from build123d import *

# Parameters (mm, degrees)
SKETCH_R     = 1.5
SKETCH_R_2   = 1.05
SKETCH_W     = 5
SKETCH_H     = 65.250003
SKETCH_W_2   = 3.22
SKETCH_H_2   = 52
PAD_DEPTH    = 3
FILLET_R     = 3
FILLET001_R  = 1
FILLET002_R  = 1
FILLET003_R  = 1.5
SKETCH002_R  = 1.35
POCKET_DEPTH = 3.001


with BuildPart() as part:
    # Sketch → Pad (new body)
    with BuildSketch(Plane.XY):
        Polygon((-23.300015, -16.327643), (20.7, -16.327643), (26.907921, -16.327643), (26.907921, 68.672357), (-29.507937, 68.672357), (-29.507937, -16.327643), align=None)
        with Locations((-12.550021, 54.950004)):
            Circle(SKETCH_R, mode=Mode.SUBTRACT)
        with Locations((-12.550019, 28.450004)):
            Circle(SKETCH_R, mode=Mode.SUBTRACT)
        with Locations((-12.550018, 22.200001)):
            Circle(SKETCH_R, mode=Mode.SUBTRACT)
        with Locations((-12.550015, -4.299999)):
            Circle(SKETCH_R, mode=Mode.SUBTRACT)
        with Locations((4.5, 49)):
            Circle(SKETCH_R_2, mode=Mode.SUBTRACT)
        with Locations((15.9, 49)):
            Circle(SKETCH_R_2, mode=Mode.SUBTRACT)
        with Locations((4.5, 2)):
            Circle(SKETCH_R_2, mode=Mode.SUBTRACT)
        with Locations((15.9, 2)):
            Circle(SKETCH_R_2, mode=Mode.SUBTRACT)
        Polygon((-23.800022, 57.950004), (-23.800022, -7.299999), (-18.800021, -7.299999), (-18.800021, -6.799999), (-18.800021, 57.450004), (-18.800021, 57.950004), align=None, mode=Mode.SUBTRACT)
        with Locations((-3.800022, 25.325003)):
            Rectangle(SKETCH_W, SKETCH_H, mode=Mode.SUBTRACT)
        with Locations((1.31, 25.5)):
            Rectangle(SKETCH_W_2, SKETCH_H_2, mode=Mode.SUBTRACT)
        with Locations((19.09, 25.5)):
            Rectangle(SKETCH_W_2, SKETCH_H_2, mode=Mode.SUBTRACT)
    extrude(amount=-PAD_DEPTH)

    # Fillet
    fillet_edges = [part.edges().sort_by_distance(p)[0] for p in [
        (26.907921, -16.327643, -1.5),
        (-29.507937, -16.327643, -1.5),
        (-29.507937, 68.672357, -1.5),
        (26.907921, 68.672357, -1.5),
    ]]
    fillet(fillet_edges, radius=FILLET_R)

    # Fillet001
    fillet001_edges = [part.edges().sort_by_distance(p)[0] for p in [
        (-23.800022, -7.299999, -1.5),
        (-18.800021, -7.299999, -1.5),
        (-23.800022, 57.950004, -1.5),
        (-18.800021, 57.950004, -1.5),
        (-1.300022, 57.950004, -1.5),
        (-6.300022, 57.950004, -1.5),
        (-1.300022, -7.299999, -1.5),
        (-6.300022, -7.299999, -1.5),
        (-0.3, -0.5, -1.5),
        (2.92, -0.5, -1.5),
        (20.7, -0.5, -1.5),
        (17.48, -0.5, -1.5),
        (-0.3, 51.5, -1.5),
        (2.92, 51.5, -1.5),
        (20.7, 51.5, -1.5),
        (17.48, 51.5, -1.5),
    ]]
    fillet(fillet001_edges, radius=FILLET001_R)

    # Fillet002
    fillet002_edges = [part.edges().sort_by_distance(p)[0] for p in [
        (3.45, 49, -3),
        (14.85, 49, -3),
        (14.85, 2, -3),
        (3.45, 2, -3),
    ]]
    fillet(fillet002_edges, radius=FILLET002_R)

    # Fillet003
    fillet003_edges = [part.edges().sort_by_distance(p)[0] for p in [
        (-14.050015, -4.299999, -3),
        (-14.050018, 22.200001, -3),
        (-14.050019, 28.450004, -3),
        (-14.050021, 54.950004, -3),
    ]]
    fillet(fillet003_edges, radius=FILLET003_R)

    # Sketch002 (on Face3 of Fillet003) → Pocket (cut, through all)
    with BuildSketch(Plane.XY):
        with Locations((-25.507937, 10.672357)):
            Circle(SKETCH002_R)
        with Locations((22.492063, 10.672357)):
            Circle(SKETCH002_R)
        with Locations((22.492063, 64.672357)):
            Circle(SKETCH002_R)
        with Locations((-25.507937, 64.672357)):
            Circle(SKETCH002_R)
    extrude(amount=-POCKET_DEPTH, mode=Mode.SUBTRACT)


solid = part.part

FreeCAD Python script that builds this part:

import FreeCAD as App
import Part
import Sketcher
from FreeCAD import Vector
Q = App.Units.Quantity


def edges_at(feature, points):
    """Names of the edges that pass closest to the given points."""
    edges = feature.Shape.Edges
    near = lambda p: min(range(len(edges)), key=lambda i: edges[i].distToShape(Part.Vertex(*p))[0])
    return sorted({f"Edge{near(p) + 1}" for p in points})


def add_polygon(sketch, points):
    """Adds a closed chain of lines whose ends are joined by coincident constraints."""
    first, n = sketch.GeometryCount, len(points)
    for a, b in zip(points, points[1:] + points[:1]):
        sketch.addGeometry(Part.LineSegment(App.Vector(*a, 0), App.Vector(*b, 0)), False)
    for i in range(n):
        sketch.addConstraint(Sketcher.Constraint("Coincident", first + i, 2, first + (i + 1) % n, 1))

doc = App.newDocument("Part")
body = doc.addObject("PartDesign::Body", "Body")

sketch1 = body.newObject("Sketcher::SketchObject", "Sketch")
sketch1.AttachmentSupport = (doc.getObject("XY_Plane"), [""])
sketch1.MapMode = "FlatFace"
add_polygon(sketch1, [(26.9, -16.3), (26.9, 68.7), (-29.5, 68.7), (-29.5, -16.3)])
sketch1.addGeometry(Part.Circle(Vector(-12.6, -4.3, 0), Vector(0, 0, 1), 1.5), False)
add_polygon(sketch1, [(-23.8, -7.3), (-23.8, 58), (-18.8, 58), (-18.8, -7.3)])
sketch1.addGeometry(Part.Circle(Vector(-12.6, 22.2, 0), Vector(0, 0, 1), 1.5), False)
sketch1.addGeometry(Part.Circle(Vector(4.5, 2, 0), Vector(0, 0, 1), 1.1), False)
sketch1.addGeometry(Part.Circle(Vector(15.9, 2, 0), Vector(0, 0, 1), 1.1), False)
sketch1.addGeometry(Part.Circle(Vector(-12.6, 28.5, 0), Vector(0, 0, 1), 1.5), False)
add_polygon(sketch1, [(-1.3, -7.3), (-6.3, -7.3), (-6.3, 58), (-1.3, 58)])
sketch1.addGeometry(Part.Circle(Vector(-12.6, 55, 0), Vector(0, 0, 1), 1.5), False)
add_polygon(sketch1, [(2.9, -0.5), (-0.3, -0.5), (-0.3, 51.5), (2.9, 51.5)])
add_polygon(sketch1, [(20.7, -0.5), (17.5, -0.5), (17.5, 51.5), (20.7, 51.5)])
sketch1.addGeometry(Part.Circle(Vector(4.5, 49, 0), Vector(0, 0, 1), 1.1), False)
sketch1.addGeometry(Part.Circle(Vector(15.9, 49, 0), Vector(0, 0, 1), 1.1), False)
sketch1.addConstraint(Sketcher.Constraint("Vertical", 0))
sketch1.addConstraint(Sketcher.Constraint("Horizontal", 1))
sketch1.addConstraint(Sketcher.Constraint("Vertical", 2))
sketch1.addConstraint(Sketcher.Constraint("Horizontal", 3))
sketch1.addConstraint(Sketcher.Constraint("Vertical", 5))
sketch1.addConstraint(Sketcher.Constraint("Horizontal", 6))
sketch1.addConstraint(Sketcher.Constraint("Vertical", 7))
sketch1.addConstraint(Sketcher.Constraint("Horizontal", 8))
sketch1.addConstraint(Sketcher.Constraint("Horizontal", 13))
sketch1.addConstraint(Sketcher.Constraint("Vertical", 14))
sketch1.addConstraint(Sketcher.Constraint("Horizontal", 15))
sketch1.addConstraint(Sketcher.Constraint("Vertical", 16))
sketch1.addConstraint(Sketcher.Constraint("Horizontal", 18))
sketch1.addConstraint(Sketcher.Constraint("Vertical", 19))
sketch1.addConstraint(Sketcher.Constraint("Horizontal", 20))
sketch1.addConstraint(Sketcher.Constraint("Vertical", 21))
sketch1.addConstraint(Sketcher.Constraint("Horizontal", 22))
sketch1.addConstraint(Sketcher.Constraint("Vertical", 23))
sketch1.addConstraint(Sketcher.Constraint("Horizontal", 24))
sketch1.addConstraint(Sketcher.Constraint("Vertical", 25))
sketch1.addConstraint(Sketcher.Constraint("Equal", 4, 9))
sketch1.addConstraint(Sketcher.Constraint("Equal", 10, 11))
sketch1.addConstraint(Sketcher.Constraint("Equal", 9, 12))
sketch1.addConstraint(Sketcher.Constraint("Equal", 12, 17))
sketch1.addConstraint(Sketcher.Constraint("Equal", 11, 26))
sketch1.addConstraint(Sketcher.Constraint("Equal", 26, 27))
sketch1.addConstraint(Sketcher.Constraint("Horizontal", 10, 3, 11, 3))
sketch1.addConstraint(Sketcher.Constraint("Horizontal", 26, 3, 27, 3))
sketch1.addConstraint(Sketcher.Constraint("Horizontal", 8, 2, 13, 2))
sketch1.addConstraint(Sketcher.Constraint("Horizontal", 6, 2, 14, 2))
sketch1.addConstraint(Sketcher.Constraint("Horizontal", 21, 2, 22, 2))
sketch1.addConstraint(Sketcher.Constraint("Horizontal", 20, 2, 23, 2))
sketch1.addConstraint(Sketcher.Constraint("Vertical", 9, 3, 12, 3))
sketch1.addConstraint(Sketcher.Constraint("Vertical", 12, 3, 17, 3))
sketch1.addConstraint(Sketcher.Constraint("Vertical", 10, 3, 26, 3))
sketch1.addConstraint(Sketcher.Constraint("Vertical", 11, 3, 27, 3))
sketch1.addConstraint(Sketcher.Constraint("Equal", 8, 13))
sketch1.addConstraint(Sketcher.Constraint("Equal", 20, 22))
sketch1.addConstraint(Sketcher.Constraint("Diameter", 4, Q("3 mm")))
sketch1.addConstraint(Sketcher.Constraint("Diameter", 10, Q("2.1 mm")))
sketch1.addConstraint(Sketcher.Constraint("DistanceX", 6, 1, 6, 2, Q("5.000001 mm")))
sketch1.addConstraint(Sketcher.Constraint("DistanceY", 0, 1, 0, 2, Q("85 mm")))
sketch1.addConstraint(Sketcher.Constraint("DistanceY", 19, 1, 19, 2, Q("52 mm")))
sketch1.addConstraint(Sketcher.Constraint("DistanceY", -1, 1, 10, 3, Q("2 mm")))
sketch1.addConstraint(Sketcher.Constraint("DistanceY", -1, 1, 26, 3, Q("49 mm")))
sketch1.addConstraint(Sketcher.Constraint("DistanceY", 17, 3, 5, 2, Q("3 mm")))
sketch1.addConstraint(Sketcher.Constraint("DistanceY", 7, 2, 4, 3, Q("3 mm")))
sketch1.addConstraint(Sketcher.Constraint("DistanceX", 18, 2, 18, 1, Q("3.22 mm")))
sketch1.addConstraint(Sketcher.Constraint("DistanceY", 4, 3, -1, 1, Q("4.299999 mm")))
sketch1.addConstraint(Sketcher.Constraint("DistanceY", -1, 1, 9, 3, Q("22.200001 mm")))
sketch1.addConstraint(Sketcher.Constraint("DistanceX", -1, 1, 10, 3, Q("4.5 mm")))
sketch1.addConstraint(Sketcher.Constraint("DistanceX", -1, 1, 11, 3, Q("15.9 mm")))
sketch1.addConstraint(Sketcher.Constraint("DistanceX", 18, 2, -1, 1, Q("0.3 mm")))
sketch1.addConstraint(Sketcher.Constraint("DistanceY", 18, 2, -1, 1, Q("0.5 mm")))
sketch1.addConstraint(Sketcher.Constraint("DistanceX", -1, 1, 24, 2, Q("20.7 mm")))
sketch1.addConstraint(Sketcher.Constraint("DistanceY", 12, 3, 17, 3, Q("26.5 mm")))
sketch1.addConstraint(Sketcher.Constraint("DistanceX", 7, 2, 13, 2, Q("12.499999 mm")))
sketch1.addConstraint(Sketcher.Constraint("DistanceX", 5, 2, 17, 3, Q("11.250001 mm")))
sketch1.addConstraint(Sketcher.Constraint("DistanceX", 1, 2, 1, 1, Q("56.415858 mm")))
sketch1.addConstraint(Sketcher.Constraint("DistanceY", 5, 1, 5, 2, Q("65.250003 mm")))
sketch1.addConstraint(Sketcher.Constraint("DistanceX", 12, 3, -1, 1, Q("12.550019 mm")))
sketch1.addConstraint(Sketcher.Constraint("DistanceX", -1, 1, 0, 2, Q("26.907921 mm")))
sketch1.addConstraint(Sketcher.Constraint("DistanceX", 2, 2, 4, 3, Q("16.957922 mm")))
sketch1.addConstraint(Sketcher.Constraint("DistanceY", -1, 1, 0, 2, Q("68.672357 mm")))
pad1 = body.newObject("PartDesign::Pad", "Pad")
pad1.Profile = sketch1
pad1.Length = 3
pad1.Reversed = True
doc.recompute()

fillet = body.newObject("PartDesign::Fillet", "Fillet")
fillet.Base = (pad1, edges_at(pad1, [
    (26.908, -16.328, -1.5),
    (-29.508, -16.328, -1.5),
    (-29.508, 68.672, -1.5),
    (26.908, 68.672, -1.5),
]))
fillet.Radius = 3
doc.recompute()

fillet2 = body.newObject("PartDesign::Fillet", "Fillet001")
fillet2.Base = (fillet, edges_at(fillet, [
    (-23.8, -7.3, -1.5),
    (-18.8, -7.3, -1.5),
    (-23.8, 57.95, -1.5),
    (-18.8, 57.95, -1.5),
    (-1.3, 57.95, -1.5),
    (-6.3, 57.95, -1.5),
    (-1.3, -7.3, -1.5),
    (-6.3, -7.3, -1.5),
    (-0.3, -0.5, -1.5),
    (2.92, -0.5, -1.5),
    (20.7, -0.5, -1.5),
    (17.48, -0.5, -1.5),
    (-0.3, 51.5, -1.5),
    (2.92, 51.5, -1.5),
    (20.7, 51.5, -1.5),
    (17.48, 51.5, -1.5),
]))
fillet2.Radius = 1
doc.recompute()

fillet3 = body.newObject("PartDesign::Fillet", "Fillet002")
fillet3.Base = (fillet2, edges_at(fillet2, [
    (3.45, 49, -3),
    (14.85, 49, -3),
    (14.85, 2, -3),
    (3.45, 2, -3),
]))
fillet3.Radius = 1
doc.recompute()

fillet4 = body.newObject("PartDesign::Fillet", "Fillet003")
fillet4.Base = (fillet3, edges_at(fillet3, [
    (-14.05, -4.3, -3),
    (-14.05, 22.2, -3),
    (-14.05, 28.45, -3),
    (-14.05, 54.95, -3),
]))
fillet4.Radius = 1.5

sketch2 = body.newObject("Sketcher::SketchObject", "Sketch001")
sketch2.AttachmentSupport = (doc.getObject("XY_Plane"), [""])
sketch2.MapMode = "FlatFace"
sketch2.addGeometry(Part.Circle(Vector(-25.5, 10.7, 0), Vector(0, 0, 1), 1.4), False)
sketch2.addGeometry(Part.Circle(Vector(22.5, 10.7, 0), Vector(0, 0, 1), 1.4), False)
sketch2.addGeometry(Part.Circle(Vector(22.5, 64.7, 0), Vector(0, 0, 1), 1.4), False)
sketch2.addGeometry(Part.Circle(Vector(-25.5, 64.7, 0), Vector(0, 0, 1), 1.4), False)
sketch2.addConstraint(Sketcher.Constraint("Equal", 0, 1))
sketch2.addConstraint(Sketcher.Constraint("Equal", 1, 2))
sketch2.addConstraint(Sketcher.Constraint("Equal", 2, 3))
sketch2.addConstraint(Sketcher.Constraint("Horizontal", 0, 3, 1, 3))
sketch2.addConstraint(Sketcher.Constraint("Horizontal", 2, 3, 3, 3))
sketch2.addConstraint(Sketcher.Constraint("Vertical", 1, 3, 2, 3))
sketch2.addConstraint(Sketcher.Constraint("Vertical", 0, 3, 3, 3))
sketch2.addConstraint(Sketcher.Constraint("Diameter", 0, Q("2.7 mm")))
sketch2.addConstraint(Sketcher.Constraint("DistanceX", 0, 3, 1, 3, Q("48 mm")))
sketch2.addConstraint(Sketcher.Constraint("DistanceY", 1, 3, 2, 3, Q("54 mm")))
sketch2.addConstraint(Sketcher.Constraint("DistanceX", 0, 3, -1, 1, Q("25.507937 mm")))
sketch2.addConstraint(Sketcher.Constraint("DistanceY", -1, 1, 0, 3, Q("10.672357 mm")))
pocket1 = body.newObject("PartDesign::Pocket", "Pocket")
pocket1.Profile = sketch2
pocket1.Type = "ThroughAll"

doc.recompute()
